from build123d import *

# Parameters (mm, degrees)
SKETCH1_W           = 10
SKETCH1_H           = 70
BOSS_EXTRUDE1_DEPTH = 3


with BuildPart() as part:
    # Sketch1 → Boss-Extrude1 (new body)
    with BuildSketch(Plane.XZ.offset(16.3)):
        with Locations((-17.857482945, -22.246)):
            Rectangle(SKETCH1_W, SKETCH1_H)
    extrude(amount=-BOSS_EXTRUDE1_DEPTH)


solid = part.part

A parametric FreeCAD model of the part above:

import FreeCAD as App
import Part
import Sketcher

doc = App.newDocument("Part")
body = doc.addObject("PartDesign::Body", "Body")

sketch1 = doc.addObject("Sketcher::SketchObject", "Sketch")
body.addObject(sketch1)
sketch1.AttachmentSupport = (doc.XZ_Plane, [""])
sketch1.MapMode = "FlatFace"
sketch1.AttachmentOffset = App.Placement(App.Vector(0, 0, 16.3), App.Rotation())
sketch1.addGeometry([
    Part.LineSegment(App.Vector(-23, 13, 0), App.Vector(-23, -57, 0)),
    Part.LineSegment(App.Vector(-23, -57, 0), App.Vector(-13, -57, 0)),
    Part.LineSegment(App.Vector(-13, -57, 0), App.Vector(-13, 13, 0)),
    Part.LineSegment(App.Vector(-13, 13, 0), App.Vector(-23, 13, 0)),
], False)
sketch1.addConstraint([
    Sketcher.Constraint("Coincident", 0, 2, 1, 1),
    Sketcher.Constraint("Coincident", 1, 2, 2, 1),
    Sketcher.Constraint("Coincident", 2, 2, 3, 1),
    Sketcher.Constraint("Coincident", 3, 2, 0, 1),
    Sketcher.Constraint("Vertical", 0),
    Sketcher.Constraint("Horizontal", 1),
    Sketcher.Constraint("Vertical", 2),
    Sketcher.Constraint("Horizontal", 3),
    Sketcher.Constraint("DistanceX", 1, 1, 1, 2, 10.0),
    Sketcher.Constraint("DistanceY", 0, 2, 0, 1, 70.0),
    Sketcher.Constraint("DistanceY", 0, 2, -1, 1, 57.246),
    Sketcher.Constraint("DistanceX", 0, 2, -1, 1, 22.857483),
])
pad1 = doc.addObject("PartDesign::Pad", "Pad")
body.addObject(pad1)
pad1.Profile = sketch1
pad1.Length = 3
pad1.Reversed = True

doc.recompute()
